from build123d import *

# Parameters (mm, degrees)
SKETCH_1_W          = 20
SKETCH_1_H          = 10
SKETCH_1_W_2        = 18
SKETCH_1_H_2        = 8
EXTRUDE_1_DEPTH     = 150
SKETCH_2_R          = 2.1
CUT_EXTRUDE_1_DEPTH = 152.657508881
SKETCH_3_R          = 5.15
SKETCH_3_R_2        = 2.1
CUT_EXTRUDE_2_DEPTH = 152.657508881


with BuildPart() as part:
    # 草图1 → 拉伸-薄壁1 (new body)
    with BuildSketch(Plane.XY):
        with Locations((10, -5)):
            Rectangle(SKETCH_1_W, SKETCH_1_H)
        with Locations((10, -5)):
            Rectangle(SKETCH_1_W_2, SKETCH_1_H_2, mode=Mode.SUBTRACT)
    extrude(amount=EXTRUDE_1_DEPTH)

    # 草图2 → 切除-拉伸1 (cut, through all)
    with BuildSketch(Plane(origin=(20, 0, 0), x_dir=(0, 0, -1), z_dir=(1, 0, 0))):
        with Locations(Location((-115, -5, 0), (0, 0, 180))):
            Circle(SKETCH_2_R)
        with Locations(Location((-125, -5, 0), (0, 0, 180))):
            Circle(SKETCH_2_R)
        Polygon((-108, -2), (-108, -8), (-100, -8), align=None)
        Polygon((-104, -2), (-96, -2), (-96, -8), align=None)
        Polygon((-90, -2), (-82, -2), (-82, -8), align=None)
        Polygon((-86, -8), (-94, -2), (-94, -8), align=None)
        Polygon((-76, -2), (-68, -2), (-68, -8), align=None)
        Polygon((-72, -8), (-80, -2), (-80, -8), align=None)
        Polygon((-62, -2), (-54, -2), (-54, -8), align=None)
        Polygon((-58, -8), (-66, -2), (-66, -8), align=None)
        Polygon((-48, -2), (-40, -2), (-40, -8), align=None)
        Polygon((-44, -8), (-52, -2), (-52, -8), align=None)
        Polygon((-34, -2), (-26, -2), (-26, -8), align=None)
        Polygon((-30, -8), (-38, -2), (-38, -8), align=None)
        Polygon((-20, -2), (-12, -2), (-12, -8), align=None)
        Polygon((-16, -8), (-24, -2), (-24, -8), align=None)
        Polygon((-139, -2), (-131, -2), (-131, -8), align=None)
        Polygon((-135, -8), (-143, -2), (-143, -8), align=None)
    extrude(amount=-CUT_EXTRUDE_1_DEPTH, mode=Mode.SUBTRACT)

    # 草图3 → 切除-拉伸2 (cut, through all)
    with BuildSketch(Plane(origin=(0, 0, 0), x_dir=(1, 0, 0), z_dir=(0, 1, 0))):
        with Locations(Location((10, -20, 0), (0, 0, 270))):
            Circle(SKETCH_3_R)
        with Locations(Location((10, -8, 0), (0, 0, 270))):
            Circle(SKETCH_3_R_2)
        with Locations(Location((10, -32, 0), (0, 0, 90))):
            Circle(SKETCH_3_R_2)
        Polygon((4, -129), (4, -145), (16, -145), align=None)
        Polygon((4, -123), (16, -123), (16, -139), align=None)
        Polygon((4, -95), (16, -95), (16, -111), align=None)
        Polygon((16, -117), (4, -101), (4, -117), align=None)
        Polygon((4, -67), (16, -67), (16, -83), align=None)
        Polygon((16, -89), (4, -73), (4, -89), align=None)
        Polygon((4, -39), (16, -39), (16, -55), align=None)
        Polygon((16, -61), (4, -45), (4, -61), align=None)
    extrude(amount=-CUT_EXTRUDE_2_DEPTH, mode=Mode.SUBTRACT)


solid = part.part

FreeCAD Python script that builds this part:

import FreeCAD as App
import Part
import Sketcher

V = App.Vector
Q = App.Units.Quantity

doc = App.newDocument("Part")
body = doc.addObject("PartDesign::Body", "Body")

sketch1 = doc.addObject("Sketcher::SketchObject", "Sketch")
body.addObject(sketch1)
sketch1.AttachmentSupport = (doc.XY_Plane, [""])
sketch1.MapMode = "FlatFace"
sketch1.addGeometry([
    Part.LineSegment(V(0, 0, 0), V(0, -10, 0)),
    Part.LineSegment(V(0, -10, 0), V(20, -10, 0)),
    Part.LineSegment(V(20, -10, 0), V(20, 0, 0)),
    Part.LineSegment(V(20, 0, 0), V(0, 0, 0)),
    Part.LineSegment(V(19, -9, 0), V(1, -9, 0)),
    Part.LineSegment(V(1, -9, 0), V(1, -1, 0)),
    Part.LineSegment(V(1, -1, 0), V(19, -1, 0)),
    Part.LineSegment(V(19, -1, 0), V(19, -9, 0)),
], False)
sketch1.addConstraint([
    Sketcher.Constraint("Coincident", 0, 2, 1, 1),
    Sketcher.Constraint("Coincident", 1, 2, 2, 1),
    Sketcher.Constraint("Coincident", 2, 2, 3, 1),
    Sketcher.Constraint("Coincident", 3, 2, 0, 1),
    Sketcher.Constraint("Coincident", 4, 2, 5, 1),
    Sketcher.Constraint("Coincident", 5, 2, 6, 1),
    Sketcher.Constraint("Coincident", 6, 2, 7, 1),
    Sketcher.Constraint("Coincident", 7, 2, 4, 1),
    Sketcher.Constraint("Vertical", 0),
    Sketcher.Constraint("Horizontal", 1),
    Sketcher.Constraint("Vertical", 2),
    Sketcher.Constraint("Horizontal", 3),
    Sketcher.Constraint("Horizontal", 4),
    Sketcher.Constraint("Vertical", 5),
    Sketcher.Constraint("Horizontal", 6),
    Sketcher.Constraint("Vertical", 7),
    Sketcher.Constraint("Coincident", 3, 2, -1, 1),
    Sketcher.Constraint("DistanceX", 1, 1, 1, 2, Q("20 mm")),
    Sketcher.Constraint("DistanceX", 4, 2, 4, 1, Q("18 mm")),
    Sketcher.Constraint("DistanceY", 0, 2, 0, 1, Q("10 mm")),
    Sketcher.Constraint("DistanceY", 5, 1, 5, 2, Q("8 mm")),
    Sketcher.Constraint("DistanceX", -1, 1, 4, 2, Q("1 mm")),
    Sketcher.Constraint("DistanceY", 4, 2, -1, 1, Q("9 mm")),
])
pad1 = doc.addObject("PartDesign::Pad", "Pad")
body.addObject(pad1)
pad1.Profile = sketch1
pad1.Length = 150

sketch2 = doc.addObject("Sketcher::SketchObject", "Sketch001")
body.addObject(sketch2)
sketch2.AttachmentSupport = (doc.YZ_Plane, [""])
sketch2.MapMode = "FlatFace"
sketch2.AttachmentOffset = App.Placement(V(0, 0, 20), App.Rotation())
sketch2.addGeometry([
    Part.Circle(V(-5, 115, 0), V(0, 0, 1), 2.1),
    Part.Circle(V(-5, 125, 0), V(0, 0, 1), 2.1),
    Part.LineSegment(V(-2, 108, 0), V(-8, 108, 0)),
    Part.LineSegment(V(-8, 108, 0), V(-8, 100, 0)),
    Part.LineSegment(V(-8, 100, 0), V(-2, 108, 0)),
    Part.LineSegment(V(-2, 96, 0), V(-2, 104, 0)),
    Part.LineSegment(V(-2, 104, 0), V(-8, 96, 0)),
    Part.LineSegment(V(-8, 96, 0), V(-2, 96, 0)),
    Part.LineSegment(V(-2, 82, 0), V(-2, 90, 0)),
    Part.LineSegment(V(-2, 90, 0), V(-8, 82, 0)),
    Part.LineSegment(V(-8, 82, 0), V(-2, 82, 0)),
    Part.LineSegment(V(-8, 86, 0), V(-2, 94, 0)),
    Part.LineSegment(V(-2, 94, 0), V(-8, 94, 0)),
    Part.LineSegment(V(-8, 94, 0), V(-8, 86, 0)),
    Part.LineSegment(V(-2, 68, 0), V(-2, 76, 0)),
    Part.LineSegment(V(-2, 76, 0), V(-8, 68, 0)),
    Part.LineSegment(V(-8, 68, 0), V(-2, 68, 0)),
    Part.LineSegment(V(-8, 72, 0), V(-2, 80, 0)),
    Part.LineSegment(V(-2, 80, 0), V(-8, 80, 0)),
    Part.LineSegment(V(-8, 80, 0), V(-8, 72, 0)),
    Part.LineSegment(V(-2, 54, 0), V(-2, 62, 0)),
    Part.LineSegment(V(-2, 62, 0), V(-8, 54, 0)),
    Part.LineSegment(V(-8, 54, 0), V(-2, 54, 0)),
    Part.LineSegment(V(-8, 58, 0), V(-2, 66, 0)),
    Part.LineSegment(V(-2, 66, 0), V(-8, 66, 0)),
    Part.LineSegment(V(-8, 66, 0), V(-8, 58, 0)),
    Part.LineSegment(V(-2, 40, 0), V(-2, 48, 0)),
    Part.LineSegment(V(-2, 48, 0), V(-8, 40, 0)),
    Part.LineSegment(V(-8, 40, 0), V(-2, 40, 0)),
    Part.LineSegment(V(-8, 44, 0), V(-2, 52, 0)),
    Part.LineSegment(V(-2, 52, 0), V(-8, 52, 0)),
    Part.LineSegment(V(-8, 52, 0), V(-8, 44, 0)),
    Part.LineSegment(V(-2, 26, 0), V(-2, 34, 0)),
    Part.LineSegment(V(-2, 34, 0), V(-8, 26, 0)),
    Part.LineSegment(V(-8, 26, 0), V(-2, 26, 0)),
    Part.LineSegment(V(-8, 30, 0), V(-2, 38, 0)),
    Part.LineSegment(V(-2, 38, 0), V(-8, 38, 0)),
    Part.LineSegment(V(-8, 38, 0), V(-8, 30, 0)),
    Part.LineSegment(V(-2, 12, 0), V(-2, 20, 0)),
    Part.LineSegment(V(-2, 20, 0), V(-8, 12, 0)),
    Part.LineSegment(V(-8, 12, 0), V(-2, 12, 0)),
    Part.LineSegment(V(-8, 16, 0), V(-2, 24, 0)),
    Part.LineSegment(V(-2, 24, 0), V(-8, 24, 0)),
    Part.LineSegment(V(-8, 24, 0), V(-8, 16, 0)),
    Part.LineSegment(V(-2, 131, 0), V(-2, 139, 0)),
    Part.LineSegment(V(-2, 139, 0), V(-8, 131, 0)),
    Part.LineSegment(V(-8, 131, 0), V(-2, 131, 0)),
    Part.LineSegment(V(-8, 135, 0), V(-2, 143, 0)),
    Part.LineSegment(V(-2, 143, 0), V(-8, 143, 0)),
    Part.LineSegment(V(-8, 143, 0), V(-8, 135, 0)),
], False)
sketch2.addConstraint([
    Sketcher.Constraint("Coincident", 2, 2, 3, 1),
    Sketcher.Constraint("Coincident", 3, 2, 4, 1),
    Sketcher.Constraint("Coincident", 4, 2, 2, 1),
    Sketcher.Constraint("Coincident", 5, 2, 6, 1),
    Sketcher.Constraint("Coincident", 6, 2, 7, 1),
    Sketcher.Constraint("Coincident", 7, 2, 5, 1),
    Sketcher.Constraint("Coincident", 8, 2, 9, 1),
    Sketcher.Constraint("Coincident", 9, 2, 10, 1),
    Sketcher.Constraint("Coincident", 10, 2, 8, 1),
    Sketcher.Constraint("Coincident", 11, 2, 12, 1),
    Sketcher.Constraint("Coincident", 12, 2, 13, 1),
    Sketcher.Constraint("Coincident", 13, 2, 11, 1),
    Sketcher.Constraint("Coincident", 14, 2, 15, 1),
    Sketcher.Constraint("Coincident", 15, 2, 16, 1),
    Sketcher.Constraint("Coincident", 16, 2, 14, 1),
    Sketcher.Constraint("Coincident", 17, 2, 18, 1),
    Sketcher.Constraint("Coincident", 18, 2, 19, 1),
    Sketcher.Constraint("Coincident", 19, 2, 17, 1),
    Sketcher.Constraint("Coincident", 20, 2, 21, 1),
    Sketcher.Constraint("Coincident", 21, 2, 22, 1),
    Sketcher.Constraint("Coincident", 22, 2, 20, 1),
    Sketcher.Constraint("Coincident", 23, 2, 24, 1),
    Sketcher.Constraint("Coincident", 24, 2, 25, 1),
    Sketcher.Constraint("Coincident", 25, 2, 23, 1),
    Sketcher.Constraint("Coincident", 26, 2, 27, 1),
    Sketcher.Constraint("Coincident", 27, 2, 28, 1),
    Sketcher.Constraint("Coincident", 28, 2, 26, 1),
    Sketcher.Constraint("Coincident", 29, 2, 30, 1),
    Sketcher.Constraint("Coincident", 30, 2, 31, 1),
    Sketcher.Constraint("Coincident", 31, 2, 29, 1),
    Sketcher.Constraint("Coincident", 32, 2, 33, 1),
    Sketcher.Constraint("Coincident", 33, 2, 34, 1),
    Sketcher.Constraint("Coincident", 34, 2, 32, 1),
    Sketcher.Constraint("Coincident", 35, 2, 36, 1),
    Sketcher.Constraint("Coincident", 36, 2, 37, 1),
    Sketcher.Constraint("Coincident", 37, 2, 35, 1),
    Sketcher.Constraint("Coincident", 38, 2, 39, 1),
    Sketcher.Constraint("Coincident", 39, 2, 40, 1),
    Sketcher.Constraint("Coincident", 40, 2, 38, 1),
    Sketcher.Constraint("Coincident", 41, 2, 42, 1),
    Sketcher.Constraint("Coincident", 42, 2, 43, 1),
    Sketcher.Constraint("Coincident", 43, 2, 41, 1),
    Sketcher.Constraint("Coincident", 44, 2, 45, 1),
    Sketcher.Constraint("Coincident", 45, 2, 46, 1),
    Sketcher.Constraint("Coincident", 46, 2, 44, 1),
    Sketcher.Constraint("Coincident", 47, 2, 48, 1),
    Sketcher.Constraint("Coincident", 48, 2, 49, 1),
    Sketcher.Constraint("Coincident", 49, 2, 47, 1),
    Sketcher.Constraint("Horizontal", 2),
    Sketcher.Constraint("Vertical", 3),
    Sketcher.Constraint("Vertical", 5),
    Sketcher.Constraint("Horizontal", 7),
    Sketcher.Constraint("Vertical", 8),
    Sketcher.Constraint("Horizontal", 10),
    Sketcher.Constraint("Horizontal", 12),
    Sketcher.Constraint("Vertical", 13),
    Sketcher.Constraint("Vertical", 14),
    Sketcher.Constraint("Horizontal", 16),
    Sketcher.Constraint("Horizontal", 18),
    Sketcher.Constraint("Vertical", 19),
    Sketcher.Constraint("Vertical", 20),
    Sketcher.Constraint("Horizontal", 22),
    Sketcher.Constraint("Horizontal", 24),
    Sketcher.Constraint("Vertical", 25),
    Sketcher.Constraint("Vertical", 26),
    Sketcher.Constraint("Horizontal", 28),
    Sketcher.Constraint("Horizontal", 30),
    Sketcher.Constraint("Vertical", 31),
    Sketcher.Constraint("Vertical", 32),
    Sketcher.Constraint("Horizontal", 34),
    Sketcher.Constraint("Horizontal", 36),
    Sketcher.Constraint("Vertical", 37),
    Sketcher.Constraint("Vertical", 38),
    Sketcher.Constraint("Horizontal", 40),
    Sketcher.Constraint("Horizontal", 42),
    Sketcher.Constraint("Vertical", 43),
    Sketcher.Constraint("Vertical", 44),
    Sketcher.Constraint("Horizontal", 46),
    Sketcher.Constraint("Horizontal", 48),
    Sketcher.Constraint("Vertical", 49),
    Sketcher.Constraint("Equal", 0, 1),
    Sketcher.Constraint("Parallel", 4, 6),
    Sketcher.Constraint("Parallel", 6, 9),
    Sketcher.Constraint("Parallel", 9, 11),
    Sketcher.Constraint("Parallel", 11, 15),
    Sketcher.Constraint("Parallel", 15, 17),
    Sketcher.Constraint("Parallel", 17, 21),
    Sketcher.Constraint("Parallel", 21, 23),
    Sketcher.Constraint("Parallel", 23, 27),
    Sketcher.Constraint("Parallel", 27, 29),
    Sketcher.Constraint("Parallel", 29, 33),
    Sketcher.Constraint("Parallel", 33, 35),
    Sketcher.Constraint("Parallel", 35, 39),
    Sketcher.Constraint("Parallel", 39, 41),
    Sketcher.Constraint("Parallel", 41, 45),
    Sketcher.Constraint("Parallel", 45, 47),
    Sketcher.Constraint("Vertical", 0, 3, 1, 3),
    Sketcher.Constraint("Vertical", 4, 2, 5, 2),
    Sketcher.Constraint("Vertical", 3, 2, 6, 2),
    Sketcher.Constraint("Vertical", 7, 2, 8, 2),
    Sketcher.Constraint("Vertical", 6, 2, 9, 2),
    Sketcher.Constraint("Vertical", 10, 2, 11, 2),
    Sketcher.Constraint("Vertical", 9, 2, 12, 2),
    Sketcher.Constraint("Vertical", 11, 2, 14, 2),
    Sketcher.Constraint("Vertical", 13, 2, 15, 2),
    Sketcher.Constraint("Vertical", 16, 2, 17, 2),
    Sketcher.Constraint("Vertical", 15, 2, 18, 2),
    Sketcher.Constraint("Vertical", 17, 2, 20, 2),
    Sketcher.Constraint("Vertical", 19, 2, 21, 2),
    Sketcher.Constraint("Vertical", 22, 2, 23, 2),
    Sketcher.Constraint("Vertical", 21, 2, 24, 2),
    Sketcher.Constraint("Vertical", 23, 2, 26, 2),
    Sketcher.Constraint("Vertical", 25, 2, 27, 2),
    Sketcher.Constraint("Vertical", 28, 2, 29, 2),
    Sketcher.Constraint("Vertical", 27, 2, 30, 2),
    Sketcher.Constraint("Vertical", 29, 2, 32, 2),
    Sketcher.Constraint("Vertical", 31, 2, 33, 2),
    Sketcher.Constraint("Vertical", 34, 2, 35, 2),
    Sketcher.Constraint("Vertical", 33, 2, 36, 2),
    Sketcher.Constraint("Vertical", 35, 2, 38, 2),
    Sketcher.Constraint("Vertical", 37, 2, 39, 2),
    Sketcher.Constraint("Vertical", 40, 2, 41, 2),
    Sketcher.Constraint("Vertical", 39, 2, 42, 2),
    Sketcher.Constraint("Vertical", 41, 2, 44, 2),
    Sketcher.Constraint("Vertical", 43, 2, 45, 2),
    Sketcher.Constraint("Vertical", 46, 2, 47, 2),
    Sketcher.Constraint("Vertical", 45, 2, 48, 2),
    Sketcher.Constraint("Diameter", 0, Q("4.2 mm")),
    Sketcher.Constraint("DistanceX", 2, 2, 2, 1, Q("6 mm")),
    Sketcher.Constraint("DistanceY", 3, 2, 3, 1, Q("8 mm")),
    Sketcher.Constraint("DistanceX", 0, 3, -1, 1, Q("5 mm")),
    Sketcher.Constraint("DistanceY", -1, 1, 0, 3, Q("115 mm")),
    Sketcher.Constraint("DistanceY", -1, 1, 1, 3, Q("125 mm")),
    Sketcher.Constraint("DistanceX", 2, 2, -1, 1, Q("8 mm")),
    Sketcher.Constraint("DistanceY", -1, 1, 2, 2, Q("108 mm")),
    Sketcher.Constraint("DistanceY", -1, 1, 5, 2, Q("104 mm")),
    Sketcher.Constraint("DistanceY", -1, 1, 8, 2, Q("90 mm")),
    Sketcher.Constraint("DistanceY", -1, 1, 11, 2, Q("94 mm")),
    Sketcher.Constraint("DistanceY", -1, 1, 14, 2, Q("76 mm")),
    Sketcher.Constraint("DistanceY", -1, 1, 17, 2, Q("80 mm")),
    Sketcher.Constraint("DistanceY", -1, 1, 20, 2, Q("62 mm")),
    Sketcher.Constraint("DistanceY", -1, 1, 23, 2, Q("66 mm")),
    Sketcher.Constraint("DistanceY", -1, 1, 26, 2, Q("48 mm")),
    Sketcher.Constraint("DistanceY", -1, 1, 29, 2, Q("52 mm")),
    Sketcher.Constraint("DistanceY", -1, 1, 32, 2, Q("34 mm")),
    Sketcher.Constraint("DistanceY", -1, 1, 35, 2, Q("38 mm")),
    Sketcher.Constraint("DistanceY", -1, 1, 38, 2, Q("20 mm")),
    Sketcher.Constraint("DistanceY", -1, 1, 41, 2, Q("24 mm")),
    Sketcher.Constraint("DistanceY", -1, 1, 44, 2, Q("139 mm")),
    Sketcher.Constraint("DistanceY", -1, 1, 47, 2, Q("143 mm")),
])
pocket1 = doc.addObject("PartDesign::Pocket", "Pocket")
body.addObject(pocket1)
pocket1.Profile = sketch2
pocket1.Type = "ThroughAll"

sketch3 = doc.addObject("Sketcher::SketchObject", "Sketch002")
body.addObject(sketch3)
sketch3.AttachmentSupport = (doc.XZ_Plane, [""])
sketch3.MapMode = "FlatFace"
sketch3.addGeometry([
    Part.Circle(V(10, 20, 0), V(0, 0, 1), 5.15),
    Part.Circle(V(10, 8, 0), V(0, 0, 1), 2.1),
    Part.Circle(V(10, 32, 0), V(0, 0, 1), 2.1),
    Part.LineSegment(V(4, 129, 0), V(4, 145, 0)),
    Part.LineSegment(V(4, 145, 0), V(16, 145, 0)),
    Part.LineSegment(V(16, 145, 0), V(4, 129, 0)),
    Part.LineSegment(V(16, 123, 0), V(4, 123, 0)),
    Part.LineSegment(V(4, 123, 0), V(16, 139, 0)),
    Part.LineSegment(V(16, 139, 0), V(16, 123, 0)),
    Part.LineSegment(V(16, 95, 0), V(4, 95, 0)),
    Part.LineSegment(V(4, 95, 0), V(16, 111, 0)),
    Part.LineSegment(V(16, 111, 0), V(16, 95, 0)),
    Part.LineSegment(V(16, 117, 0), V(4, 101, 0)),
    Part.LineSegment(V(4, 101, 0), V(4, 117, 0)),
    Part.LineSegment(V(4, 117, 0), V(16, 117, 0)),
    Part.LineSegment(V(16, 67, 0), V(4, 67, 0)),
    Part.LineSegment(V(4, 67, 0), V(16, 83, 0)),
    Part.LineSegment(V(16, 83, 0), V(16, 67, 0)),
    Part.LineSegment(V(16, 89, 0), V(4, 73, 0)),
    Part.LineSegment(V(4, 73, 0), V(4, 89, 0)),
    Part.LineSegment(V(4, 89, 0), V(16, 89, 0)),
    Part.LineSegment(V(16, 39, 0), V(4, 39, 0)),
    Part.LineSegment(V(4, 39, 0), V(16, 55, 0)),
    Part.LineSegment(V(16, 55, 0), V(16, 39, 0)),
    Part.LineSegment(V(16, 61, 0), V(4, 45, 0)),
    Part.LineSegment(V(4, 45, 0), V(4, 61, 0)),
    Part.LineSegment(V(4, 61, 0), V(16, 61, 0)),
], False)
sketch3.addConstraint([
    Sketcher.Constraint("Coincident", 3, 2, 4, 1),
    Sketcher.Constraint("Coincident", 4, 2, 5, 1),
    Sketcher.Constraint("Coincident", 5, 2, 3, 1),
    Sketcher.Constraint("Coincident", 6, 2, 7, 1),
    Sketcher.Constraint("Coincident", 7, 2, 8, 1),
    Sketcher.Constraint("Coincident", 8, 2, 6, 1),
    Sketcher.Constraint("Coincident", 9, 2, 10, 1),
    Sketcher.Constraint("Coincident", 10, 2, 11, 1),
    Sketcher.Constraint("Coincident", 11, 2, 9, 1),
    Sketcher.Constraint("Coincident", 12, 2, 13, 1),
    Sketcher.Constraint("Coincident", 13, 2, 14, 1),
    Sketcher.Constraint("Coincident", 14, 2, 12, 1),
    Sketcher.Constraint("Coincident", 15, 2, 16, 1),
    Sketcher.Constraint("Coincident", 16, 2, 17, 1),
    Sketcher.Constraint("Coincident", 17, 2, 15, 1),
    Sketcher.Constraint("Coincident", 18, 2, 19, 1),
    Sketcher.Constraint("Coincident", 19, 2, 20, 1),
    Sketcher.Constraint("Coincident", 20, 2, 18, 1),
    Sketcher.Constraint("Coincident", 21, 2, 22, 1),
    Sketcher.Constraint("Coincident", 22, 2, 23, 1),
    Sketcher.Constraint("Coincident", 23, 2, 21, 1),
    Sketcher.Constraint("Coincident", 24, 2, 25, 1),
    Sketcher.Constraint("Coincident", 25, 2, 26, 1),
    Sketcher.Constraint("Coincident", 26, 2, 24, 1),
    Sketcher.Constraint("Vertical", 3),
    Sketcher.Constraint("Horizontal", 4),
    Sketcher.Constraint("Horizontal", 6),
    Sketcher.Constraint("Vertical", 8),
    Sketcher.Constraint("Horizontal", 9),
    Sketcher.Constraint("Vertical", 11),
    Sketcher.Constraint("Vertical", 13),
    Sketcher.Constraint("Horizontal", 14),
    Sketcher.Constraint("Horizontal", 15),
    Sketcher.Constraint("Vertical", 17),
    Sketcher.Constraint("Vertical", 19),
    Sketcher.Constraint("Horizontal", 20),
    Sketcher.Constraint("Horizontal", 21),
    Sketcher.Constraint("Vertical", 23),
    Sketcher.Constraint("Vertical", 25),
    Sketcher.Constraint("Horizontal", 26),
    Sketcher.Constraint("Equal", 1, 2),
    Sketcher.Constraint("Parallel", 5, 7),
    Sketcher.Constraint("Parallel", 7, 10),
    Sketcher.Constraint("Parallel", 10, 12),
    Sketcher.Constraint("Parallel", 12, 16),
    Sketcher.Constraint("Parallel", 16, 18),
    Sketcher.Constraint("Parallel", 18, 22),
    Sketcher.Constraint("Parallel", 22, 24),
    Sketcher.Constraint("Vertical", 0, 3, 1, 3),
    Sketcher.Constraint("Vertical", 1, 3, 2, 3),
    Sketcher.Constraint("Vertical", 5, 2, 6, 2),
    Sketcher.Constraint("Vertical", 4, 2, 7, 2),
    Sketcher.Constraint("Vertical", 6, 2, 9, 2),
    Sketcher.Constraint("Vertical", 8, 2, 10, 2),
    Sketcher.Constraint("Vertical", 9, 2, 12, 2),
    Sketcher.Constraint("Vertical", 11, 2, 14, 2),
    Sketcher.Constraint("Vertical", 13, 2, 15, 2),
    Sketcher.Constraint("Vertical", 14, 2, 16, 2),
    Sketcher.Constraint("Vertical", 15, 2, 18, 2),
    Sketcher.Constraint("Vertical", 17, 2, 20, 2),
    Sketcher.Constraint("Vertical", 19, 2, 21, 2),
    Sketcher.Constraint("Vertical", 20, 2, 22, 2),
    Sketcher.Constraint("Vertical", 21, 2, 24, 2),
    Sketcher.Constraint("Vertical", 23, 2, 26, 2),
    Sketcher.Constraint("Diameter", 0, Q("10.3 mm")),
    Sketcher.Constraint("Diameter", 1, Q("4.2 mm")),
    Sketcher.Constraint("DistanceX", 4, 1, 4, 2, Q("12 mm")),
    Sketcher.Constraint("DistanceY", 3, 1, 3, 2, Q("16 mm")),
    Sketcher.Constraint("DistanceX", -1, 1, 0, 3, Q("10 mm")),
    Sketcher.Constraint("DistanceY", -1, 1, 0, 3, Q("20 mm")),
    Sketcher.Constraint("DistanceY", -1, 1, 1, 3, Q("8 mm")),
    Sketcher.Constraint("DistanceY", -1, 1, 2, 3, Q("32 mm")),
    Sketcher.Constraint("DistanceX", -1, 1, 3, 2, Q("4 mm")),
    Sketcher.Constraint("DistanceY", -1, 1, 3, 2, Q("145 mm")),
    Sketcher.Constraint("DistanceY", -1, 1, 6, 2, Q("123 mm")),
    Sketcher.Constraint("DistanceY", -1, 1, 9, 2, Q("95 mm")),
    Sketcher.Constraint("DistanceY", -1, 1, 12, 2, Q("101 mm")),
    Sketcher.Constraint("DistanceY", -1, 1, 15, 2, Q("67 mm")),
    Sketcher.Constraint("DistanceY", -1, 1, 18, 2, Q("73 mm")),
    Sketcher.Constraint("DistanceY", -1, 1, 21, 2, Q("39 mm")),
    Sketcher.Constraint("DistanceY", -1, 1, 24, 2, Q("45 mm")),
])
pocket2 = doc.addObject("PartDesign::Pocket", "Pocket001")
body.addObject(pocket2)
pocket2.Profile = sketch3
pocket2.Type = "ThroughAll"
pocket2.Reversed = True

doc.recompute()
